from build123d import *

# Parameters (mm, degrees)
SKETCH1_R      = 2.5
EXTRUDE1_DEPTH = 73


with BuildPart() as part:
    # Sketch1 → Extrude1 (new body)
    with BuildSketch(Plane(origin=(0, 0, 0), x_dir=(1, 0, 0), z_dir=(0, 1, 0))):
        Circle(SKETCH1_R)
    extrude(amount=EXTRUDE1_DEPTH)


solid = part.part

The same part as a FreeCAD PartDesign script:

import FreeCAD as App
import Part
import Sketcher
Q = App.Units.Quantity

doc = App.newDocument("Part")
body = doc.addObject("PartDesign::Body", "Body")

# Sketch on XZ plane
sketch1 = doc.addObject("Sketcher::SketchObject", "Sketch")
body.addObject(sketch1)
sketch1.AttachmentSupport = (doc.XZ_Plane, [""])
sketch1.MapMode = "FlatFace"
sketch1.addGeometry(Part.Circle(App.Vector(0, 0, 0), App.Vector(0, 0, 1), 2.5), False)
sketch1.addConstraint([
    Sketcher.Constraint("Coincident", 0, 3, -1, 1),
    Sketcher.Constraint("Diameter", 0, Q("5 mm")),
])
pad1 = doc.addObject("PartDesign::Pad", "Pad")
body.addObject(pad1)
pad1.Profile = sketch1
pad1.Length = 73
pad1.Reversed = True

doc.recompute()
